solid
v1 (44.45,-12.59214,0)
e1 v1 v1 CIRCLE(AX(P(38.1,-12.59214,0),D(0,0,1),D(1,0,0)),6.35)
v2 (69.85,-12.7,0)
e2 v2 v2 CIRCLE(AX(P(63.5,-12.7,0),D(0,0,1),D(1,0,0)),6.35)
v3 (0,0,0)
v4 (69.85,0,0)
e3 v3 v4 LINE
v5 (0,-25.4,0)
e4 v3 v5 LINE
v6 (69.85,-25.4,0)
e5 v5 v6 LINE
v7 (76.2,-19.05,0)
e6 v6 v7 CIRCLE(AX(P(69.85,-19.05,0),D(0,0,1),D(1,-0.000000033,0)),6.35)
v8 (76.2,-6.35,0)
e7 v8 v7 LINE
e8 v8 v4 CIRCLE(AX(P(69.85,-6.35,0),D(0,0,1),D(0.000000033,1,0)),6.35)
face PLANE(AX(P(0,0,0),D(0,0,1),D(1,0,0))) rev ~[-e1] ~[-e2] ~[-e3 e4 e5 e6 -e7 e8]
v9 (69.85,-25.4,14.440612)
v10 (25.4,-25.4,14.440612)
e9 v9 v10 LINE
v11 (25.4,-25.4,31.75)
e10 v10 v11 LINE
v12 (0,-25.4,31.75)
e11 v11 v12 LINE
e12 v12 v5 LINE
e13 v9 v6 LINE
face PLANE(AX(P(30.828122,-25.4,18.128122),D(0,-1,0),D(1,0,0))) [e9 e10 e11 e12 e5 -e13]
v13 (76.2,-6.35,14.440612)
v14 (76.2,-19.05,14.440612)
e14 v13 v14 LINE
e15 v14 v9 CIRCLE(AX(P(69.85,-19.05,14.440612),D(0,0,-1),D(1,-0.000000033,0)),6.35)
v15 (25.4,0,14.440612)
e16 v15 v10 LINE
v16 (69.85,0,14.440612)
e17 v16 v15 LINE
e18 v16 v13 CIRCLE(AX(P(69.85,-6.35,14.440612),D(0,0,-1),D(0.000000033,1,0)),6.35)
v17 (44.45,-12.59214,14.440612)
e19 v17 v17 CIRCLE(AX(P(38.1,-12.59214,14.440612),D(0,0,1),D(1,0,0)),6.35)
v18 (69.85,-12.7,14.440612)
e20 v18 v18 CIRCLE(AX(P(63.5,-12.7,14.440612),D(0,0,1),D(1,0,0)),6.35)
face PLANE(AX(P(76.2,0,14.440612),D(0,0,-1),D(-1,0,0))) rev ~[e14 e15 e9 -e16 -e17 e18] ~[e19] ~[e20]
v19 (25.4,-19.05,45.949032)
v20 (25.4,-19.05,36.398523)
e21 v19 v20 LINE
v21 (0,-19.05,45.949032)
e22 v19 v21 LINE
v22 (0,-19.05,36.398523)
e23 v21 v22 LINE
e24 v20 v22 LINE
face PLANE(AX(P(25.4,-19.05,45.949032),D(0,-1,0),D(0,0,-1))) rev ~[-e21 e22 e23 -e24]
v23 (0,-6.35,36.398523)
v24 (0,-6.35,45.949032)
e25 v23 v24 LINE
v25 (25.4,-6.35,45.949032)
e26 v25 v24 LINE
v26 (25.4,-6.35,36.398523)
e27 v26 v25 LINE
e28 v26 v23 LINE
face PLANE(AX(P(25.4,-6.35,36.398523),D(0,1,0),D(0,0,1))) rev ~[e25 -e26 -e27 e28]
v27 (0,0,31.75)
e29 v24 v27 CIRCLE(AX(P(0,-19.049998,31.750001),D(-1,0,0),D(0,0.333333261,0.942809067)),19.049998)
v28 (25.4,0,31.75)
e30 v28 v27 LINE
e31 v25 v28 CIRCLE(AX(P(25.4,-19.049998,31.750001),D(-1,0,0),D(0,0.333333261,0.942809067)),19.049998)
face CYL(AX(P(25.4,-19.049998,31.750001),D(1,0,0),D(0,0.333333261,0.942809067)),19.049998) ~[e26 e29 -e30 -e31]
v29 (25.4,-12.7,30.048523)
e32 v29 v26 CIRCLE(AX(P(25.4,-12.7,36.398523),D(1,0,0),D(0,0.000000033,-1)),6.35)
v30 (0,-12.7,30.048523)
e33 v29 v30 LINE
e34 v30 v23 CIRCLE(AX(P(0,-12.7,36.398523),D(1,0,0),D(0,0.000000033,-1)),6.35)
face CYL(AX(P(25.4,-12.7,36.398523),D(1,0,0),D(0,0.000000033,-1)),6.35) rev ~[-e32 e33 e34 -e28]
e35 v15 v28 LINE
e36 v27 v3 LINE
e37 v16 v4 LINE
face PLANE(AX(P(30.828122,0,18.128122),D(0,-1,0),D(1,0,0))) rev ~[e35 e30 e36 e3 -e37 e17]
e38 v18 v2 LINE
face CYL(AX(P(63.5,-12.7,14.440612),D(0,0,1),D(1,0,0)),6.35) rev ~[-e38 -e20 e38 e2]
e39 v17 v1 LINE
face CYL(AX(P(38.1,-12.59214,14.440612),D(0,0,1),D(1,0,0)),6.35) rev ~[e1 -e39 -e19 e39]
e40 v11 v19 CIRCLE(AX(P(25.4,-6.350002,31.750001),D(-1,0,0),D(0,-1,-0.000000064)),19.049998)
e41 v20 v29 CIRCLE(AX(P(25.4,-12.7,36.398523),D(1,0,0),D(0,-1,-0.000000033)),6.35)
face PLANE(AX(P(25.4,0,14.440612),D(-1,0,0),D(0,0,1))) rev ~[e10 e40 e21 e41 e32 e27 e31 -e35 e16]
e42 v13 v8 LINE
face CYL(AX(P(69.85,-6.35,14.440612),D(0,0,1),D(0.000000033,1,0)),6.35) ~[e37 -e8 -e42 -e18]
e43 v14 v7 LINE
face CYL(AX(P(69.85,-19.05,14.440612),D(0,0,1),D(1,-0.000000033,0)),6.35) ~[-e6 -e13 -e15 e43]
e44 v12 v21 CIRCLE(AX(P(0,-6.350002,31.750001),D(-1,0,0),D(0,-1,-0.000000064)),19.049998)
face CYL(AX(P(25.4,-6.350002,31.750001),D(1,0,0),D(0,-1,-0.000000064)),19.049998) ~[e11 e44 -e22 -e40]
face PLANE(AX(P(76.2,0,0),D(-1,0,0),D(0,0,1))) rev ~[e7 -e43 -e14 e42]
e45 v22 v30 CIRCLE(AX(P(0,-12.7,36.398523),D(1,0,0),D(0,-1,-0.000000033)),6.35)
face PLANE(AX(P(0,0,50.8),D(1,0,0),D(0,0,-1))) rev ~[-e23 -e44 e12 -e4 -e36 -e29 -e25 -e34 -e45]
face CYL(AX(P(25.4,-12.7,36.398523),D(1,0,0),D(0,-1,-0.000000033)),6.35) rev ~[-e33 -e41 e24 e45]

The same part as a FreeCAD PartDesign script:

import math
import FreeCAD as App
import Part
import Sketcher
from FreeCAD import Vector
Q = App.Units.Quantity


def add_polygon(sketch, points):
    """Adds a closed chain of lines whose ends are joined by coincident constraints."""
    first, n = sketch.GeometryCount, len(points)
    for a, b in zip(points, points[1:] + points[:1]):
        sketch.addGeometry(Part.LineSegment(App.Vector(*a, 0), App.Vector(*b, 0)), False)
    for i in range(n):
        sketch.addConstraint(Sketcher.Constraint("Coincident", first + i, 2, first + (i + 1) % n, 1))

doc = App.newDocument("Part")
body = doc.addObject("PartDesign::Body", "Body")

# Sketch on XZ plane
sketch1 = body.newObject("Sketcher::SketchObject", "Sketch")
sketch1.AttachmentSupport = (doc.getObject("XZ_Plane"), [""])
sketch1.MapMode = "FlatFace"
add_polygon(sketch1, [(0, 51), (0, 0), (76, 0), (76, 14), (25, 14), (25, 51)])  # lines 0-5
sketch1.addConstraint([
    Sketcher.Constraint("Vertical", 0),
    Sketcher.Constraint("Horizontal", 1),
    Sketcher.Constraint("Vertical", 2),
    Sketcher.Constraint("Horizontal", 3),
    Sketcher.Constraint("Vertical", 4),
    Sketcher.Constraint("Horizontal", 5),
    Sketcher.Constraint("Coincident", 0, 2, -1, 1),
    Sketcher.Constraint("Equal", 3, 0),
    Sketcher.Constraint("DistanceX", 1, 1, 1, 2, Q("3 in")),
    Sketcher.Constraint("DistanceX", 3, 2, 3, 1, Q("2 in")),
    Sketcher.Constraint("DistanceY", 2, 1, 2, 2, Q("14.440612 mm")),
])
pad1 = body.newObject("PartDesign::Pad", "Pad")
pad1.Profile = sketch1
pad1.Length = Q("1 in")

# Sketch on YZ plane
sketch2 = body.newObject("Sketcher::SketchObject", "Sketch001")
sketch2.AttachmentSupport = (doc.getObject("YZ_Plane"), [""])
sketch2.MapMode = "FlatFace"
sketch2.AttachmentOffset = App.Placement(Vector(0, 0, 1 * 25.4), App.Rotation())
sketch2.addGeometry([
    Part.LineSegment(Vector(-25, 51, 0), Vector(-25, 32, 0)),  # 0
    Part.ArcOfCircle(Part.Circle(Vector(-6, 32, 0), Vector(0, 0, 1), 19), math.radians(109), math.radians(180)),  # 1
    Part.ArcOfCircle(Part.Circle(Vector(-19, 32, 0), Vector(0, 0, 1), 19), math.radians(0), math.radians(71)),  # 2
    Part.LineSegment(Vector(0, 32, 0), Vector(0, 51, 0)),  # 3
    Part.LineSegment(Vector(0, 51, 0), Vector(-25, 51, 0)),  # 4
], False)
sketch2.addConstraint([
    Sketcher.Constraint("Tangent", 0, 2, 1, 2),
    Sketcher.Constraint("Coincident", 1, 1, 2, 2),
    Sketcher.Constraint("Tangent", 2, 1, 3, 1),
    Sketcher.Constraint("Coincident", 3, 2, 4, 1),
    Sketcher.Constraint("Coincident", 4, 2, 0, 1),
    Sketcher.Constraint("Vertical", 0),
    Sketcher.Constraint("Vertical", 3),
    Sketcher.Constraint("Horizontal", 4),
    Sketcher.Constraint("Equal", 1, 2),
    Sketcher.Constraint("PointOnObject", 2, 1, -2),
    Sketcher.Constraint("Horizontal", 1, 3, 2, 3),
    Sketcher.Constraint("DistanceX", 4, 2, 4, 1, Q("1 in")),
    Sketcher.Constraint("Radius", 1, Q("0.7499999 in")),
    Sketcher.Constraint("DistanceY", -1, 1, 3, 2, Q("2 in")),
    Sketcher.Constraint("DistanceY", 0, 2, 0, 1, Q("0.75 in")),
])
pocket1 = body.newObject("PartDesign::Pocket", "Pocket")
pocket1.Profile = sketch2
pocket1.Length = Q("1 in")

# Sketch on YZ plane
sketch3 = body.newObject("Sketcher::SketchObject", "Sketch002")
sketch3.AttachmentSupport = (doc.getObject("YZ_Plane"), [""])
sketch3.MapMode = "FlatFace"
sketch3.AttachmentOffset = App.Placement(Vector(0, 0, 1 * 25.4), App.Rotation())
sketch3.addGeometry([
    Part.ArcOfCircle(Part.Circle(Vector(-6, 32, 0), Vector(0, 0, 1), 19), math.radians(109), math.radians(132)),  # 0
    Part.LineSegment(Vector(-19, 46, 0), Vector(-19, 36, 0)),  # 1
    Part.ArcOfCircle(Part.Circle(Vector(-13, 36, 0), Vector(0, 0, 1), 6), math.radians(-180), math.radians(-90)),  # 2
    Part.ArcOfCircle(Part.Circle(Vector(-13, 36, 0), Vector(0, 0, 1), 6), math.radians(-90), math.radians(0)),  # 3
    Part.LineSegment(Vector(-6, 36, 0), Vector(-6, 46, 0)),  # 4
    Part.ArcOfCircle(Part.Circle(Vector(-19, 32, 0), Vector(0, 0, 1), 19), math.radians(48), math.radians(71)),  # 5
], False)
sketch3.addConstraint([
    Sketcher.Constraint("Coincident", 0, 2, 1, 1),
    Sketcher.Constraint("Tangent", 1, 2, 2, 1),
    Sketcher.Constraint("Tangent", 2, 2, 3, 1),
    Sketcher.Constraint("Tangent", 3, 2, 4, 1),
    Sketcher.Constraint("Coincident", 4, 2, 5, 1),
    Sketcher.Constraint("Coincident", 5, 2, 0, 1),
    Sketcher.Constraint("Vertical", 1),
    Sketcher.Constraint("Vertical", 4),
    Sketcher.Constraint("Equal", 2, 3),
    Sketcher.Constraint("Equal", 0, 5),
    Sketcher.Constraint("Horizontal", 0, 3, 5, 3),
    Sketcher.Constraint("Horizontal", 0, 2, 4, 2),
    Sketcher.Constraint("Vertical", 3, 3, 2, 2),
    Sketcher.Constraint("Radius", 2, Q("0.25 in")),
    Sketcher.Constraint("DistanceX", 2, 3, -1, 1, Q("0.5 in")),
    Sketcher.Constraint("Radius", 0, Q("19.049971 mm")),
    Sketcher.Constraint("DistanceY", 1, 2, 1, 1, Q("9.550509 mm")),
    Sketcher.Constraint("DistanceY", 0, 3, 2, 3, Q("4.648498 mm")),
    Sketcher.Constraint("DistanceY", -1, 1, 0, 3, Q("31.750025 mm")),
])
pocket2 = body.newObject("PartDesign::Pocket", "Pocket001")
pocket2.Profile = sketch3
pocket2.Length = Q("1 in")

# Sketch on XY plane
sketch4 = body.newObject("Sketcher::SketchObject", "Sketch003")
sketch4.AttachmentSupport = (doc.getObject("XY_Plane"), [""])
sketch4.MapMode = "FlatFace"
sketch4.AttachmentOffset = App.Placement(Vector(0, 0, 14.440612), App.Rotation())
sketch4.addGeometry([
    Part.Circle(Vector(38, -13, 0), Vector(0, 0, 1), 6),
    Part.Circle(Vector(64, -13, 0), Vector(0, 0, 1), 6),
], False)
sketch4.addConstraint([
    Sketcher.Constraint("Equal", 0, 1),
    Sketcher.Constraint("Diameter", 0, Q("0.5 in")),
    Sketcher.Constraint("DistanceX", 0, 3, 1, 3, Q("1 in")),
    Sketcher.Constraint("DistanceX", -1, 1, 0, 3, Q("1.5 in")),
    Sketcher.Constraint("DistanceY", 1, 3, -1, 1, Q("0.5 in")),
    Sketcher.Constraint("DistanceY", 0, 3, -1, 1, Q("12.59214 mm")),
])
pocket3 = body.newObject("PartDesign::Pocket", "Pocket002")
pocket3.Profile = sketch4
pocket3.Length = Q("1 in")

# Sketch on XY plane
sketch5 = body.newObject("Sketcher::SketchObject", "Sketch004")
sketch5.AttachmentSupport = (doc.getObject("XY_Plane"), [""])
sketch5.MapMode = "FlatFace"
sketch5.AttachmentOffset = App.Placement(Vector(0, 0, 14.440612), App.Rotation())
sketch5.addGeometry([
    Part.Circle(Vector(38, -13, 0), Vector(0, 0, 1), 6),  # 0
    Part.Circle(Vector(64, -13, 0), Vector(0, 0, 1), 6),  # 1
    Part.LineSegment(Vector(76, 0, 0), Vector(70, 0, 0)),  # 2
    Part.ArcOfCircle(Part.Circle(Vector(70, -6, 0), Vector(0, 0, 1), 6), math.radians(0), math.radians(90)),  # 3
    Part.LineSegment(Vector(76, -6, 0), Vector(76, 0, 0)),  # 4
    Part.ArcOfCircle(Part.Circle(Vector(70, -19, 0), Vector(0, 0, 1), 6), math.radians(-90), math.radians(0)),  # 5
    Part.LineSegment(Vector(70, -25, 0), Vector(76, -25, 0)),  # 6
    Part.LineSegment(Vector(76, -25, 0), Vector(76, -19, 0)),  # 7
], False)
sketch5.addConstraint([
    Sketcher.Constraint("Tangent", 2, 2, 3, 2),
    Sketcher.Constraint("Tangent", 3, 1, 4, 1),
    Sketcher.Constraint("Coincident", 4, 2, 2, 1),
    Sketcher.Constraint("Tangent", 5, 1, 6, 1),
    Sketcher.Constraint("Coincident", 6, 2, 7, 1),
    Sketcher.Constraint("Tangent", 7, 2, 5, 2),
    Sketcher.Constraint("Horizontal", 2),
    Sketcher.Constraint("Vertical", 4),
    Sketcher.Constraint("Horizontal", 6),
    Sketcher.Constraint("Vertical", 7),
    Sketcher.Constraint("Equal", 0, 1),
    Sketcher.Constraint("Equal", 1, 3),
    Sketcher.Constraint("Equal", 3, 5),
    Sketcher.Constraint("PointOnObject", 2, 2, -1),
    Sketcher.Constraint("Vertical", 3, 3, 5, 3),
    Sketcher.Constraint("Diameter", 0, Q("0.5 in")),
    Sketcher.Constraint("DistanceX", -1, 1, 3, 1, Q("3 in")),
    Sketcher.Constraint("DistanceY", 5, 1, -1, 1, Q("1 in")),
    Sketcher.Constraint("DistanceX", 0, 3, 1, 3, Q("1 in")),
    Sketcher.Constraint("DistanceX", -1, 1, 0, 3, Q("1.5 in")),
    Sketcher.Constraint("DistanceY", 1, 3, -1, 1, Q("0.5 in")),
    Sketcher.Constraint("DistanceY", 0, 3, -1, 1, Q("12.59214 mm")),
])
pocket4 = body.newObject("PartDesign::Pocket", "Pocket003")
pocket4.Profile = sketch5
pocket4.Length = Q("1 in")

doc.recompute()
